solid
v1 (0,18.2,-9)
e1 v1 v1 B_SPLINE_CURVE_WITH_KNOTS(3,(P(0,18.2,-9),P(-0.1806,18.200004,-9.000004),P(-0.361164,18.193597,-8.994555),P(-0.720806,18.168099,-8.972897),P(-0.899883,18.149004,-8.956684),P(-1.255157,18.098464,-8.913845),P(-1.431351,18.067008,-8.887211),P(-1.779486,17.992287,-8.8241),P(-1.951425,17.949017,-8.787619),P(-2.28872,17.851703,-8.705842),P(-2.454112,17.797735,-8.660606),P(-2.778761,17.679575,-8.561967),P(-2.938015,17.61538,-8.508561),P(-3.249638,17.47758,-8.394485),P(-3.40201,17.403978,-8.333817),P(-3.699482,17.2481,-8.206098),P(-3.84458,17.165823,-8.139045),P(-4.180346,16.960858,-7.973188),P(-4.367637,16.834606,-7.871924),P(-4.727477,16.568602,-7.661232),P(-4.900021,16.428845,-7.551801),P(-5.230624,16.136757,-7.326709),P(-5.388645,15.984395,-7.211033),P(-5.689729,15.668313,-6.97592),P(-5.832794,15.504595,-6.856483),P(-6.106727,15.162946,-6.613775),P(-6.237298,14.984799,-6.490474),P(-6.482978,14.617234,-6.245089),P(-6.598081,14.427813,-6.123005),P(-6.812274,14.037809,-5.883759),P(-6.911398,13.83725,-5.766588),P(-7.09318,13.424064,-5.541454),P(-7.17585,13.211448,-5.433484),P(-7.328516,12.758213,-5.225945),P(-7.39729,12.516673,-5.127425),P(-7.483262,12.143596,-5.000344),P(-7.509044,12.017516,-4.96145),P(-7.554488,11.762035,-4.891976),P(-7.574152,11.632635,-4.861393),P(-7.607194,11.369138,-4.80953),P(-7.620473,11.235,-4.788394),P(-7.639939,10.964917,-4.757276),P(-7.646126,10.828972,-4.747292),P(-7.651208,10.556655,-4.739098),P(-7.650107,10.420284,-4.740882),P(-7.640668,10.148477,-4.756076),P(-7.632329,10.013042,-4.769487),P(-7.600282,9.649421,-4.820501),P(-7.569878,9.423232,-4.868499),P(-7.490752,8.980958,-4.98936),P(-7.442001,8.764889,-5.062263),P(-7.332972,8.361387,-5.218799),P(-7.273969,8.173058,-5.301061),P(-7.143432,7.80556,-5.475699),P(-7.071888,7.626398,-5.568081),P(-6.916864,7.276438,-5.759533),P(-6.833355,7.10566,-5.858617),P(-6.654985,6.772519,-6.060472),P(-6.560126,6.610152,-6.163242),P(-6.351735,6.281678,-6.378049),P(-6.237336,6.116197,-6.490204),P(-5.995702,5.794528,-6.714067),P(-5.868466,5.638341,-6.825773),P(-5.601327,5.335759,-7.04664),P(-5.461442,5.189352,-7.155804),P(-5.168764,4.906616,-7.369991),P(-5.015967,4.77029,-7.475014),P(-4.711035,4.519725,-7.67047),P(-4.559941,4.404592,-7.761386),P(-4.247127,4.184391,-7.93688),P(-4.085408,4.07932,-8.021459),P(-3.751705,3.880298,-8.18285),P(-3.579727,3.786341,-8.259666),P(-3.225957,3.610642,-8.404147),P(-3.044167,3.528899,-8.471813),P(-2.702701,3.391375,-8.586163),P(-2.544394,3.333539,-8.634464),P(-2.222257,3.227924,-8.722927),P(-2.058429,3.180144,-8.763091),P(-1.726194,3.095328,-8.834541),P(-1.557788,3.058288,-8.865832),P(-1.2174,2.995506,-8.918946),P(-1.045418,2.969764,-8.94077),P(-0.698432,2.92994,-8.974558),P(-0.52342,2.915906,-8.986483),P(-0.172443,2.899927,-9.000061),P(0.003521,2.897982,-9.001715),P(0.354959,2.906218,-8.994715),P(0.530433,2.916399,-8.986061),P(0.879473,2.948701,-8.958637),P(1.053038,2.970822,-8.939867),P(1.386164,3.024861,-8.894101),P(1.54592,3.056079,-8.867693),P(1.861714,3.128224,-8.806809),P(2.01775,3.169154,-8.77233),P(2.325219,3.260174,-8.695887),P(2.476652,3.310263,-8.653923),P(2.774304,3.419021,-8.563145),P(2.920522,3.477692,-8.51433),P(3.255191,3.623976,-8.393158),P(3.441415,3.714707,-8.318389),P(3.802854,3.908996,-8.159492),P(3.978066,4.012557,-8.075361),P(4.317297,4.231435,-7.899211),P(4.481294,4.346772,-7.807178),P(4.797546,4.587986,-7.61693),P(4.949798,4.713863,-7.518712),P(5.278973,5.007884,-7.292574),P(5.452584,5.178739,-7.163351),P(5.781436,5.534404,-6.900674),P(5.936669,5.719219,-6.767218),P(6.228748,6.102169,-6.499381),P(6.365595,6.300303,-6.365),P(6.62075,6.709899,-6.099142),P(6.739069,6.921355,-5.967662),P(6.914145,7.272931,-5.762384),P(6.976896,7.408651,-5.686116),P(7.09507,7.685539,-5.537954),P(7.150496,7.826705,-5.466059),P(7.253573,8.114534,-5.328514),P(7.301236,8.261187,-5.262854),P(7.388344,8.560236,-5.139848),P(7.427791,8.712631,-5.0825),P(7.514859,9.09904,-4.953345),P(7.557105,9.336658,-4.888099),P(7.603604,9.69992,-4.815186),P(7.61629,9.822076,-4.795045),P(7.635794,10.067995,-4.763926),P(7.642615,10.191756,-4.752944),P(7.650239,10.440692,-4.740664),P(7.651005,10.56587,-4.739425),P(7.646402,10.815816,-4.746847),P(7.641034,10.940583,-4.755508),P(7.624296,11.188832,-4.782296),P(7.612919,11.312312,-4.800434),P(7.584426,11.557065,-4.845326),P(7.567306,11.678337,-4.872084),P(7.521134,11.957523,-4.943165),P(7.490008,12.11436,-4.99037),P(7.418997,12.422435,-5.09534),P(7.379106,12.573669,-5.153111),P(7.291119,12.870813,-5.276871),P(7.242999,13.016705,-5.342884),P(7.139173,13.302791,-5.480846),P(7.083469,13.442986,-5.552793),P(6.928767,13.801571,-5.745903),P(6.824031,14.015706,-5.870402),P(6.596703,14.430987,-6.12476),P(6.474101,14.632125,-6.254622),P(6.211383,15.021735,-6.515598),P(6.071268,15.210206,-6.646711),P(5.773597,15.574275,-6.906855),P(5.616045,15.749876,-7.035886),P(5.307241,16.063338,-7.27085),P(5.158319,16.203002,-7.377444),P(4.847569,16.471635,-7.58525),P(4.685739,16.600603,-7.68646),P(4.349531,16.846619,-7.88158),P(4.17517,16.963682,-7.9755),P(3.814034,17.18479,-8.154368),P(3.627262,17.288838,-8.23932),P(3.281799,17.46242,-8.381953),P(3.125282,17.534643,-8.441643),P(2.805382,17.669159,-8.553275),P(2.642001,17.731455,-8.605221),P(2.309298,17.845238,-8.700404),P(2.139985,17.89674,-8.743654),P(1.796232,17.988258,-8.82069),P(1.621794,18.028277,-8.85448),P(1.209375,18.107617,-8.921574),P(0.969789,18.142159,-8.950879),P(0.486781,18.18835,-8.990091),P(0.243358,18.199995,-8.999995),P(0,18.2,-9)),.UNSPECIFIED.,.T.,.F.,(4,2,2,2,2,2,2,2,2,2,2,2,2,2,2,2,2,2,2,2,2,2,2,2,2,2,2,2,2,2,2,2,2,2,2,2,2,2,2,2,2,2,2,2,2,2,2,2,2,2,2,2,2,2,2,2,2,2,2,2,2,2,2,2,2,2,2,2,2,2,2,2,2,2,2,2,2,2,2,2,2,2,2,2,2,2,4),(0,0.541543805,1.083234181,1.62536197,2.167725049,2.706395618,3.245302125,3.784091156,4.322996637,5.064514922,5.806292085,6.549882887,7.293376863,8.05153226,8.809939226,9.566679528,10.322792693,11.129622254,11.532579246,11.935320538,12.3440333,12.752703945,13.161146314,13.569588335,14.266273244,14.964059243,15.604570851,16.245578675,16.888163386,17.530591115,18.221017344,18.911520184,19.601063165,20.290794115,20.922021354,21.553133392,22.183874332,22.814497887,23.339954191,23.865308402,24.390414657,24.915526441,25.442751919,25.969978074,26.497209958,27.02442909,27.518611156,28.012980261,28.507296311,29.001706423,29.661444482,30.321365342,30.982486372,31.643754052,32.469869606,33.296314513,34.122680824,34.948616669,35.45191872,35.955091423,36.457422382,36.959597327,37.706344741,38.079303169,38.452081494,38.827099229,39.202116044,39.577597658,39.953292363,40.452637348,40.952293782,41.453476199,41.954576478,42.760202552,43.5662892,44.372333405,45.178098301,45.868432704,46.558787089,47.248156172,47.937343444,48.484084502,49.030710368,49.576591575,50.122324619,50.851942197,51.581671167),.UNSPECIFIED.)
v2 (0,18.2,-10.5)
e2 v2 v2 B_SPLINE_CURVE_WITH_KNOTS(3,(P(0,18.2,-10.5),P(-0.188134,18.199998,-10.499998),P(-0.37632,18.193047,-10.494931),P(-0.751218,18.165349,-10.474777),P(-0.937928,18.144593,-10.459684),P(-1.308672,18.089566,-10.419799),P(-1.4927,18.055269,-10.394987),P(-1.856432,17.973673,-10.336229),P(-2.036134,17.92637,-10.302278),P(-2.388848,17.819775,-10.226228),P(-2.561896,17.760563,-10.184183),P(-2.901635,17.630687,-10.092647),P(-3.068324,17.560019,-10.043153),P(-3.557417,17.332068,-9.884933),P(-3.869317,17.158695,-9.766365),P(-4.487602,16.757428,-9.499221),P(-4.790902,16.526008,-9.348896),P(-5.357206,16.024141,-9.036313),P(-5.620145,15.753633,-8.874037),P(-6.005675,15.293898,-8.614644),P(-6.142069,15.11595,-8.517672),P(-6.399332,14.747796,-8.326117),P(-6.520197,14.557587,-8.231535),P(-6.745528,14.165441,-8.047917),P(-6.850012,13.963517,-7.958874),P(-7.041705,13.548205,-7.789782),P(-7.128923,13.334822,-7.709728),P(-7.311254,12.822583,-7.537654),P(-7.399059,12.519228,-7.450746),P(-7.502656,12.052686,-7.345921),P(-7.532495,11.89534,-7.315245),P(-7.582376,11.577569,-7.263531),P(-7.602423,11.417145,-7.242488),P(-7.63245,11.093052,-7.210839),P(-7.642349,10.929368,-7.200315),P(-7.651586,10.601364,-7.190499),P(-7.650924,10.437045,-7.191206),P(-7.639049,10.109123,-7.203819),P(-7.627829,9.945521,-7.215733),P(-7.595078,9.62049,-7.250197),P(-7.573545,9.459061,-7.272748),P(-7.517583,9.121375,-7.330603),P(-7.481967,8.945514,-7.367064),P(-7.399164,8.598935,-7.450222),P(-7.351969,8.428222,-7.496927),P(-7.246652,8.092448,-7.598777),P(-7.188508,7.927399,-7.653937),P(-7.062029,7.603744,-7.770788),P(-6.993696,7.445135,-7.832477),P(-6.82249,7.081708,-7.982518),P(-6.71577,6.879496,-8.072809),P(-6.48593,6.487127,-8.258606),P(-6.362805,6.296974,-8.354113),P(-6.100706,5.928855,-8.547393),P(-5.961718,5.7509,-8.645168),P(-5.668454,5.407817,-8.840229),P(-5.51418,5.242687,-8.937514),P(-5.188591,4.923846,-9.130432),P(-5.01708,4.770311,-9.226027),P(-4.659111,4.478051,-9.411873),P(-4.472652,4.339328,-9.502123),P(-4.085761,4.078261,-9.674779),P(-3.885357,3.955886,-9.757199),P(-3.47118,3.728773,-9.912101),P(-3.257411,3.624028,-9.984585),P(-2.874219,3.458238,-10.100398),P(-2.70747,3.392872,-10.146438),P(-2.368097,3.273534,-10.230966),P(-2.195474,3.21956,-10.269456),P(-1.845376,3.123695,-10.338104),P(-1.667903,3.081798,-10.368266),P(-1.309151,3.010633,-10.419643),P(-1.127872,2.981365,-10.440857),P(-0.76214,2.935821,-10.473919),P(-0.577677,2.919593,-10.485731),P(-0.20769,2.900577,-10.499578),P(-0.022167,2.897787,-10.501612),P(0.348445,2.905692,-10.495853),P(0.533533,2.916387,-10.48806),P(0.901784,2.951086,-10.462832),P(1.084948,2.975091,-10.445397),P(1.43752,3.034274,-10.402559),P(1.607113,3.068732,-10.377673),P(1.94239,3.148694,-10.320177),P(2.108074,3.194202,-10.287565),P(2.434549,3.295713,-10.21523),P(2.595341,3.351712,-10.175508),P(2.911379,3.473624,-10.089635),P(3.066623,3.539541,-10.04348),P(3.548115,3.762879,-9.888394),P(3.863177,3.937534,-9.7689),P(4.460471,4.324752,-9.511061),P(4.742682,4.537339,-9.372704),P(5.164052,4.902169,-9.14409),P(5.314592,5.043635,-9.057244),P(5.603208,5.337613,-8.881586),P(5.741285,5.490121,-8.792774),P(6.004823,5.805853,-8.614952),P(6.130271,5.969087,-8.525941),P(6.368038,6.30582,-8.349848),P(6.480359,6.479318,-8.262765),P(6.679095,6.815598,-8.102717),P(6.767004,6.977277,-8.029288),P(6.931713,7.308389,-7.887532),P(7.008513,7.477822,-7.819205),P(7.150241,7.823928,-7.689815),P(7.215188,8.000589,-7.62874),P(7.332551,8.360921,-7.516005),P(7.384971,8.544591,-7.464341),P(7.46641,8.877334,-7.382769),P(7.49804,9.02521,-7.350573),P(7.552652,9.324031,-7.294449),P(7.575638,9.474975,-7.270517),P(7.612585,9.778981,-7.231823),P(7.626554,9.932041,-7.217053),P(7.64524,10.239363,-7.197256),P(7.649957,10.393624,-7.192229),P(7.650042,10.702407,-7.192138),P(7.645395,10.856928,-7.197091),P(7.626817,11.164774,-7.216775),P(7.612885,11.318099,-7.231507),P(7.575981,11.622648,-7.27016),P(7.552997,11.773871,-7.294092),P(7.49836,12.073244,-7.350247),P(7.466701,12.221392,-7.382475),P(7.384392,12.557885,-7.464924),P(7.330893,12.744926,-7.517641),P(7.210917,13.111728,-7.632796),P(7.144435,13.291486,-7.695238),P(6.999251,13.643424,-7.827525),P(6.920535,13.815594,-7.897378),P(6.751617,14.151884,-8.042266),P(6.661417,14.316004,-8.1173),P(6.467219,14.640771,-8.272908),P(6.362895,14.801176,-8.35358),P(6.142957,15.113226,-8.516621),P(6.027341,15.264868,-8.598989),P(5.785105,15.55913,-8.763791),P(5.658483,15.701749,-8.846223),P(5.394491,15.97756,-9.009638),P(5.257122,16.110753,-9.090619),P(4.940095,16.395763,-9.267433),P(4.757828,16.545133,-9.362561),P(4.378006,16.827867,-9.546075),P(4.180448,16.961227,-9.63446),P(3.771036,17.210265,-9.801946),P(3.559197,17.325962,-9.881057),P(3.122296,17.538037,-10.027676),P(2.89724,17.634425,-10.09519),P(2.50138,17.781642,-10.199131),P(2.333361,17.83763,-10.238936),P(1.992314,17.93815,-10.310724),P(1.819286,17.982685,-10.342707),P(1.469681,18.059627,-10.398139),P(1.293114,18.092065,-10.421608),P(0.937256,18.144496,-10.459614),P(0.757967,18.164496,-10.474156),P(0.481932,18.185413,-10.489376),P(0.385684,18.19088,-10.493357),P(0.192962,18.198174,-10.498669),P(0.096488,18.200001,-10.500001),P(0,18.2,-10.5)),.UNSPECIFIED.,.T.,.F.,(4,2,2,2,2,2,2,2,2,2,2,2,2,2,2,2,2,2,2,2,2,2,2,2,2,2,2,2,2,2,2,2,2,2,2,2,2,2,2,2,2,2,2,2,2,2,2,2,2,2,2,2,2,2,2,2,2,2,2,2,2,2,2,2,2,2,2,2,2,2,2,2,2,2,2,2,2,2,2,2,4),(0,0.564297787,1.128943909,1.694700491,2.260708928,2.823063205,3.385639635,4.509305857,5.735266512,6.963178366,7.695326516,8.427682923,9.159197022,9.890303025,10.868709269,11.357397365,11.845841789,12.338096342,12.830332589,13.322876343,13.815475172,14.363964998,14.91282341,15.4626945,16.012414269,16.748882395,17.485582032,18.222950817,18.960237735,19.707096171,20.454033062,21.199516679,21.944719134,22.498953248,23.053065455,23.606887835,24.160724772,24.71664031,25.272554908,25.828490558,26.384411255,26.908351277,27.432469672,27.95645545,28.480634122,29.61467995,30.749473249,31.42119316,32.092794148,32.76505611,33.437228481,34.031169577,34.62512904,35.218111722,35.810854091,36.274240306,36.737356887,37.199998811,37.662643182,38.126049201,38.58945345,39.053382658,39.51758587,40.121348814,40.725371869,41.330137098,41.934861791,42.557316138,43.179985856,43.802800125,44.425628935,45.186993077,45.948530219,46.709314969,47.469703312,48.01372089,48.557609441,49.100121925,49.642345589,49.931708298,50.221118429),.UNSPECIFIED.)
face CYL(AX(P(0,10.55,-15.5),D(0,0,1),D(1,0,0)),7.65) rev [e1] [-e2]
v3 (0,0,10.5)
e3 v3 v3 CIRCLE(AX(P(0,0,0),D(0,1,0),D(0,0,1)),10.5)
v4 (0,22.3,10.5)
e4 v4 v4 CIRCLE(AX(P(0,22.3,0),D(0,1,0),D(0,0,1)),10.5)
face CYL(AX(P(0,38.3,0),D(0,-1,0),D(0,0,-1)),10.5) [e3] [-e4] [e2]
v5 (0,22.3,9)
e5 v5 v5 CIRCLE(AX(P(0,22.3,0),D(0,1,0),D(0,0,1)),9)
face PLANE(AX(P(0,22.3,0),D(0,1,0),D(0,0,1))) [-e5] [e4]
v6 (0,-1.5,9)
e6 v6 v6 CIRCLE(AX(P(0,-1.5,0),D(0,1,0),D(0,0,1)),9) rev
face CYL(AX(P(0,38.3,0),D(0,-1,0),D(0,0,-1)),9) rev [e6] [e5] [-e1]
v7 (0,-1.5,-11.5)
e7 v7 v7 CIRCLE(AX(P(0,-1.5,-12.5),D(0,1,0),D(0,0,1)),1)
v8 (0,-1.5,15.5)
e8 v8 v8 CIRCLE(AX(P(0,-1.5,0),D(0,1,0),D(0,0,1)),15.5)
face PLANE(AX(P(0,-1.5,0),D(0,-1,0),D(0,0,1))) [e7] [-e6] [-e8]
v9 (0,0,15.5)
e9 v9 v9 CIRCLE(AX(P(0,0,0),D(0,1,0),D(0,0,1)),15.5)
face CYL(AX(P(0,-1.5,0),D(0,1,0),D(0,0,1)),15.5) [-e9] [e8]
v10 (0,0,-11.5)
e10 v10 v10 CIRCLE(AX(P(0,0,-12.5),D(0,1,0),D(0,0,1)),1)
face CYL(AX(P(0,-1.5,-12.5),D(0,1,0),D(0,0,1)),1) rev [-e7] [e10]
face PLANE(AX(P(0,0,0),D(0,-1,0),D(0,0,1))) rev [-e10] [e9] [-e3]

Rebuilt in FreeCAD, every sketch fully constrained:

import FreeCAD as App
import Part
import Sketcher
from FreeCAD import Vector

doc = App.newDocument("Part")
body = doc.addObject("PartDesign::Body", "Body")

sketch1 = body.newObject("Sketcher::SketchObject", "Sketch")
sketch1.AttachmentSupport = (doc.getObject("XZ_Plane"), [""])
sketch1.MapMode = "FlatFace"
sketch1.addGeometry(Part.Circle(Vector(0, 0, 0), Vector(0, 0, 1), 10), False)
sketch1.addGeometry(Part.Circle(Vector(0, 0, 0), Vector(0, 0, 1), 9), False)
sketch1.addConstraint(Sketcher.Constraint("Coincident", 0, 3, -1, 1))
sketch1.addConstraint(Sketcher.Constraint("Coincident", 1, 3, -1, 1))
sketch1.addConstraint(Sketcher.Constraint("Diameter", 0, 21.0))
sketch1.addConstraint(Sketcher.Constraint("Diameter", 1, 18.0))
pad1 = body.newObject("PartDesign::Pad", "Pad")
pad1.Profile = sketch1
pad1.Length = 38.3
pad1.Reversed = True

sketch2 = body.newObject("Sketcher::SketchObject", "Sketch001")
sketch2.AttachmentSupport = (doc.getObject("XZ_Plane"), [""])
sketch2.MapMode = "FlatFace"
sketch2.AttachmentOffset = App.Placement(Vector(0, 0, -38.3), App.Rotation())
sketch2.addGeometry(Part.Circle(Vector(0, 0, 0), Vector(0, 0, 1), 15.5), False)
sketch2.addGeometry(Part.Circle(Vector(0, -12.5, 0), Vector(0, 0, 1), 1), False)
sketch2.addGeometry(Part.Circle(Vector(0, 0, 0), Vector(0, 0, 1), 9), False)
sketch2.addConstraint(Sketcher.Constraint("Coincident", 0, 3, -1, 1))
sketch2.addConstraint(Sketcher.Constraint("Coincident", 2, 3, -1, 1))
sketch2.addConstraint(Sketcher.Constraint("PointOnObject", 1, 3, -2))
sketch2.addConstraint(Sketcher.Constraint("Diameter", 0, 31.0))
sketch2.addConstraint(Sketcher.Constraint("Diameter", 1, 2.0))
sketch2.addConstraint(Sketcher.Constraint("Diameter", 2, 18.0))
sketch2.addConstraint(Sketcher.Constraint("DistanceY", 1, 3, -1, 1, 12.5))
pad2 = body.newObject("PartDesign::Pad", "Pad001")
pad2.Profile = sketch2
pad2.Length = 1.5
pad2.Reversed = True
doc.recompute()

datumplane = body.newObject("PartDesign::Plane", "DatumPlane")
datumplane.AttachmentSupport = (doc.getObject("XZ_Plane"), [""])
datumplane.MapMode = "FlatFace"
datumplane.AttachmentOffset = App.Placement(Vector(0, 0, -19.15), App.Rotation())
mirrored = body.newObject("PartDesign::Mirrored", "Mirrored")
mirrored.Originals = [pad2]
mirrored.MirrorPlane = (datumplane, [""])
body.Tip = mirrored

sketch3 = body.newObject("Sketcher::SketchObject", "Sketch002")
sketch3.AttachmentSupport = (doc.getObject("XY_Plane"), [""])
sketch3.MapMode = "FlatFace"
sketch3.addGeometry(Part.Circle(Vector(0, 11, 0), Vector(0, 0, 1), 8), False)
sketch3.addConstraint(Sketcher.Constraint("PointOnObject", 0, 3, -2))
sketch3.addConstraint(Sketcher.Constraint("Diameter", 0, 15.3))
sketch3.addConstraint(Sketcher.Constraint("DistanceY", -1, 1, 0, 3, 10.55))
pocket1 = body.newObject("PartDesign::Pocket", "Pocket")
pocket1.Profile = sketch3
pocket1.Type = "ThroughAll"

sketch4 = body.newObject("Sketcher::SketchObject", "Sketch003")
sketch4.AttachmentSupport = (doc.getObject("XZ_Plane"), [""])
sketch4.MapMode = "FlatFace"
sketch4.AttachmentOffset = App.Placement(Vector(0, 0, -39.8), App.Rotation())
sketch4.addGeometry(Part.Circle(Vector(0, 0, 0), Vector(0, 0, 1), 21), False)
sketch4.addConstraint(Sketcher.Constraint("Coincident", 0, 3, -1, 1))
sketch4.addConstraint(Sketcher.Constraint("Diameter", 0, 41.510602))
pocket2 = body.newObject("PartDesign::Pocket", "Pocket001")
pocket2.Profile = sketch4
pocket2.Length = 17.5
pocket2.Reversed = True

doc.recompute()
